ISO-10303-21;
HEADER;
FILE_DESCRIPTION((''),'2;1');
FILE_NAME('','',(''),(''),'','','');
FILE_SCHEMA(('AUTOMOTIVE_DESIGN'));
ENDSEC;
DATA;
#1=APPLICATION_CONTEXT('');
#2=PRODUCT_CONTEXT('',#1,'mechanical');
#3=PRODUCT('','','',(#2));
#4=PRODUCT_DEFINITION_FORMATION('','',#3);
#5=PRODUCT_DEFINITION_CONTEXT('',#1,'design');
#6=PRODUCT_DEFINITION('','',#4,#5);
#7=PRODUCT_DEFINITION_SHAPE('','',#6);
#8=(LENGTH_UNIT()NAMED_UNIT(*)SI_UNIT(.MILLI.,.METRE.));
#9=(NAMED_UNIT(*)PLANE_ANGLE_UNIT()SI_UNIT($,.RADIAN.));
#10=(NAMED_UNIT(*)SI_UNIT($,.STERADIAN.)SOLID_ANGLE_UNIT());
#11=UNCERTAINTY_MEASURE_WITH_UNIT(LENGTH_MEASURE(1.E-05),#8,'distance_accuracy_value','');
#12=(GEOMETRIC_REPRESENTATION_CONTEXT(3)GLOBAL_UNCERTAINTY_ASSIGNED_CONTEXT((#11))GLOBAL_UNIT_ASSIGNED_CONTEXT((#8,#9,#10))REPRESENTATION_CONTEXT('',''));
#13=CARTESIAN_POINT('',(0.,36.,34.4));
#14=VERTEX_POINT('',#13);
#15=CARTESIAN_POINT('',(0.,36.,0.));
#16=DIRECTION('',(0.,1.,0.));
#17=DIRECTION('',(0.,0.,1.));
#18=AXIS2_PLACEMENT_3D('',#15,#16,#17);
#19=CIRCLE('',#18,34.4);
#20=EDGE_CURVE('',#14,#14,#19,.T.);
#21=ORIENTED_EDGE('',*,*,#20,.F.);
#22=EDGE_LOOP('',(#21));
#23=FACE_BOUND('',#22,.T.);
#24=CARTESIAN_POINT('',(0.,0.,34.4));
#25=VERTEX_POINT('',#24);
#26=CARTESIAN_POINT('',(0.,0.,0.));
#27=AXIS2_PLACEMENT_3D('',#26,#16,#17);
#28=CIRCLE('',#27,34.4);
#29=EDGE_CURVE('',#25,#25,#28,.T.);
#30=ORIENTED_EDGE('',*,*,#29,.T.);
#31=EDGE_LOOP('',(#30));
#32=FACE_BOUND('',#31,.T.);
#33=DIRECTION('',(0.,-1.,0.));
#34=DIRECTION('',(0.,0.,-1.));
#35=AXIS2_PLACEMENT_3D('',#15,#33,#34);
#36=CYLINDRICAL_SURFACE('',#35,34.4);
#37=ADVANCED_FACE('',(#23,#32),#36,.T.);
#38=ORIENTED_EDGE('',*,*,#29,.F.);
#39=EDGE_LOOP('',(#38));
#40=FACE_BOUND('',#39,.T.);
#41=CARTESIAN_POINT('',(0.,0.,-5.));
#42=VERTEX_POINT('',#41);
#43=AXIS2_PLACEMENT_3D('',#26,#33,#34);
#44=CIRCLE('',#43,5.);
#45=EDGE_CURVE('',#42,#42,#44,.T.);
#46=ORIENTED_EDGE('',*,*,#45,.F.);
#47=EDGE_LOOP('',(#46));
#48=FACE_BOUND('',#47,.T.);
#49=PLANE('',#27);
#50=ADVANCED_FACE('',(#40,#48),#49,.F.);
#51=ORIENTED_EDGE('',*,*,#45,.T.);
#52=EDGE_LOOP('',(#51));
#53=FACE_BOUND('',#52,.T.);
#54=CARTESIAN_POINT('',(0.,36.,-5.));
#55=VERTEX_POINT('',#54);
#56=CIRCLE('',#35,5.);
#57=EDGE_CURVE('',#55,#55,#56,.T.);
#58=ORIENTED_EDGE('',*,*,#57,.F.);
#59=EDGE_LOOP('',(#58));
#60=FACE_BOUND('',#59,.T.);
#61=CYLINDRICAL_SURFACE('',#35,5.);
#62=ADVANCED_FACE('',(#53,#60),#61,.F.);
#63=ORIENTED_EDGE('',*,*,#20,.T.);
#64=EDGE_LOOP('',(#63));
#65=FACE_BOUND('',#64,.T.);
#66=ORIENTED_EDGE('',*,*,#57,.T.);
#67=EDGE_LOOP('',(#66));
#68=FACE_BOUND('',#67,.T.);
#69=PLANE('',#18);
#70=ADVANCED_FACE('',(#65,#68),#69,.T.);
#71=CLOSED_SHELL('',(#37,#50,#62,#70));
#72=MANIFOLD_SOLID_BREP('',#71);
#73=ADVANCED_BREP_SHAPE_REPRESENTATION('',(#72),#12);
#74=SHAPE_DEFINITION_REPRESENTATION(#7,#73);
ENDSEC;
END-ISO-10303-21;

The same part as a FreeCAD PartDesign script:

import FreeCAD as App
import Part
import Sketcher

V = App.Vector
Q = App.Units.Quantity

doc = App.newDocument("Part")
body = doc.addObject("PartDesign::Body", "Body")

# Sketch on XZ plane
sketch1 = body.newObject("Sketcher::SketchObject", "Sketch")
sketch1.AttachmentSupport = (doc.getObject("XZ_Plane"), [""])
sketch1.MapMode = "FlatFace"
sketch1.addGeometry(Part.Circle(V(0, 0, 0), V(0, 0, 1), 34), False)
sketch1.addConstraint([
    Sketcher.Constraint("Coincident", 0, 3, -1, 1),
    Sketcher.Constraint("Diameter", 0, Q("68.8 mm")),
])
pad1 = body.newObject("PartDesign::Pad", "Pad")
pad1.Profile = sketch1
pad1.Length = 36
pad1.Reversed = True

# Sketch on XZ plane
sketch2 = body.newObject("Sketcher::SketchObject", "Sketch001")
sketch2.AttachmentSupport = (doc.getObject("XZ_Plane"), [""])
sketch2.MapMode = "FlatFace"
sketch2.addGeometry(Part.Circle(V(0, 0, 0), V(0, 0, 1), 5), False)
sketch2.addConstraint([
    Sketcher.Constraint("Coincident", 0, 3, -1, 1),
    Sketcher.Constraint("Diameter", 0, Q("10 mm")),
])
pocket1 = body.newObject("PartDesign::Pocket", "Pocket")
pocket1.Profile = sketch2
pocket1.Length = 36

doc.recompute()
